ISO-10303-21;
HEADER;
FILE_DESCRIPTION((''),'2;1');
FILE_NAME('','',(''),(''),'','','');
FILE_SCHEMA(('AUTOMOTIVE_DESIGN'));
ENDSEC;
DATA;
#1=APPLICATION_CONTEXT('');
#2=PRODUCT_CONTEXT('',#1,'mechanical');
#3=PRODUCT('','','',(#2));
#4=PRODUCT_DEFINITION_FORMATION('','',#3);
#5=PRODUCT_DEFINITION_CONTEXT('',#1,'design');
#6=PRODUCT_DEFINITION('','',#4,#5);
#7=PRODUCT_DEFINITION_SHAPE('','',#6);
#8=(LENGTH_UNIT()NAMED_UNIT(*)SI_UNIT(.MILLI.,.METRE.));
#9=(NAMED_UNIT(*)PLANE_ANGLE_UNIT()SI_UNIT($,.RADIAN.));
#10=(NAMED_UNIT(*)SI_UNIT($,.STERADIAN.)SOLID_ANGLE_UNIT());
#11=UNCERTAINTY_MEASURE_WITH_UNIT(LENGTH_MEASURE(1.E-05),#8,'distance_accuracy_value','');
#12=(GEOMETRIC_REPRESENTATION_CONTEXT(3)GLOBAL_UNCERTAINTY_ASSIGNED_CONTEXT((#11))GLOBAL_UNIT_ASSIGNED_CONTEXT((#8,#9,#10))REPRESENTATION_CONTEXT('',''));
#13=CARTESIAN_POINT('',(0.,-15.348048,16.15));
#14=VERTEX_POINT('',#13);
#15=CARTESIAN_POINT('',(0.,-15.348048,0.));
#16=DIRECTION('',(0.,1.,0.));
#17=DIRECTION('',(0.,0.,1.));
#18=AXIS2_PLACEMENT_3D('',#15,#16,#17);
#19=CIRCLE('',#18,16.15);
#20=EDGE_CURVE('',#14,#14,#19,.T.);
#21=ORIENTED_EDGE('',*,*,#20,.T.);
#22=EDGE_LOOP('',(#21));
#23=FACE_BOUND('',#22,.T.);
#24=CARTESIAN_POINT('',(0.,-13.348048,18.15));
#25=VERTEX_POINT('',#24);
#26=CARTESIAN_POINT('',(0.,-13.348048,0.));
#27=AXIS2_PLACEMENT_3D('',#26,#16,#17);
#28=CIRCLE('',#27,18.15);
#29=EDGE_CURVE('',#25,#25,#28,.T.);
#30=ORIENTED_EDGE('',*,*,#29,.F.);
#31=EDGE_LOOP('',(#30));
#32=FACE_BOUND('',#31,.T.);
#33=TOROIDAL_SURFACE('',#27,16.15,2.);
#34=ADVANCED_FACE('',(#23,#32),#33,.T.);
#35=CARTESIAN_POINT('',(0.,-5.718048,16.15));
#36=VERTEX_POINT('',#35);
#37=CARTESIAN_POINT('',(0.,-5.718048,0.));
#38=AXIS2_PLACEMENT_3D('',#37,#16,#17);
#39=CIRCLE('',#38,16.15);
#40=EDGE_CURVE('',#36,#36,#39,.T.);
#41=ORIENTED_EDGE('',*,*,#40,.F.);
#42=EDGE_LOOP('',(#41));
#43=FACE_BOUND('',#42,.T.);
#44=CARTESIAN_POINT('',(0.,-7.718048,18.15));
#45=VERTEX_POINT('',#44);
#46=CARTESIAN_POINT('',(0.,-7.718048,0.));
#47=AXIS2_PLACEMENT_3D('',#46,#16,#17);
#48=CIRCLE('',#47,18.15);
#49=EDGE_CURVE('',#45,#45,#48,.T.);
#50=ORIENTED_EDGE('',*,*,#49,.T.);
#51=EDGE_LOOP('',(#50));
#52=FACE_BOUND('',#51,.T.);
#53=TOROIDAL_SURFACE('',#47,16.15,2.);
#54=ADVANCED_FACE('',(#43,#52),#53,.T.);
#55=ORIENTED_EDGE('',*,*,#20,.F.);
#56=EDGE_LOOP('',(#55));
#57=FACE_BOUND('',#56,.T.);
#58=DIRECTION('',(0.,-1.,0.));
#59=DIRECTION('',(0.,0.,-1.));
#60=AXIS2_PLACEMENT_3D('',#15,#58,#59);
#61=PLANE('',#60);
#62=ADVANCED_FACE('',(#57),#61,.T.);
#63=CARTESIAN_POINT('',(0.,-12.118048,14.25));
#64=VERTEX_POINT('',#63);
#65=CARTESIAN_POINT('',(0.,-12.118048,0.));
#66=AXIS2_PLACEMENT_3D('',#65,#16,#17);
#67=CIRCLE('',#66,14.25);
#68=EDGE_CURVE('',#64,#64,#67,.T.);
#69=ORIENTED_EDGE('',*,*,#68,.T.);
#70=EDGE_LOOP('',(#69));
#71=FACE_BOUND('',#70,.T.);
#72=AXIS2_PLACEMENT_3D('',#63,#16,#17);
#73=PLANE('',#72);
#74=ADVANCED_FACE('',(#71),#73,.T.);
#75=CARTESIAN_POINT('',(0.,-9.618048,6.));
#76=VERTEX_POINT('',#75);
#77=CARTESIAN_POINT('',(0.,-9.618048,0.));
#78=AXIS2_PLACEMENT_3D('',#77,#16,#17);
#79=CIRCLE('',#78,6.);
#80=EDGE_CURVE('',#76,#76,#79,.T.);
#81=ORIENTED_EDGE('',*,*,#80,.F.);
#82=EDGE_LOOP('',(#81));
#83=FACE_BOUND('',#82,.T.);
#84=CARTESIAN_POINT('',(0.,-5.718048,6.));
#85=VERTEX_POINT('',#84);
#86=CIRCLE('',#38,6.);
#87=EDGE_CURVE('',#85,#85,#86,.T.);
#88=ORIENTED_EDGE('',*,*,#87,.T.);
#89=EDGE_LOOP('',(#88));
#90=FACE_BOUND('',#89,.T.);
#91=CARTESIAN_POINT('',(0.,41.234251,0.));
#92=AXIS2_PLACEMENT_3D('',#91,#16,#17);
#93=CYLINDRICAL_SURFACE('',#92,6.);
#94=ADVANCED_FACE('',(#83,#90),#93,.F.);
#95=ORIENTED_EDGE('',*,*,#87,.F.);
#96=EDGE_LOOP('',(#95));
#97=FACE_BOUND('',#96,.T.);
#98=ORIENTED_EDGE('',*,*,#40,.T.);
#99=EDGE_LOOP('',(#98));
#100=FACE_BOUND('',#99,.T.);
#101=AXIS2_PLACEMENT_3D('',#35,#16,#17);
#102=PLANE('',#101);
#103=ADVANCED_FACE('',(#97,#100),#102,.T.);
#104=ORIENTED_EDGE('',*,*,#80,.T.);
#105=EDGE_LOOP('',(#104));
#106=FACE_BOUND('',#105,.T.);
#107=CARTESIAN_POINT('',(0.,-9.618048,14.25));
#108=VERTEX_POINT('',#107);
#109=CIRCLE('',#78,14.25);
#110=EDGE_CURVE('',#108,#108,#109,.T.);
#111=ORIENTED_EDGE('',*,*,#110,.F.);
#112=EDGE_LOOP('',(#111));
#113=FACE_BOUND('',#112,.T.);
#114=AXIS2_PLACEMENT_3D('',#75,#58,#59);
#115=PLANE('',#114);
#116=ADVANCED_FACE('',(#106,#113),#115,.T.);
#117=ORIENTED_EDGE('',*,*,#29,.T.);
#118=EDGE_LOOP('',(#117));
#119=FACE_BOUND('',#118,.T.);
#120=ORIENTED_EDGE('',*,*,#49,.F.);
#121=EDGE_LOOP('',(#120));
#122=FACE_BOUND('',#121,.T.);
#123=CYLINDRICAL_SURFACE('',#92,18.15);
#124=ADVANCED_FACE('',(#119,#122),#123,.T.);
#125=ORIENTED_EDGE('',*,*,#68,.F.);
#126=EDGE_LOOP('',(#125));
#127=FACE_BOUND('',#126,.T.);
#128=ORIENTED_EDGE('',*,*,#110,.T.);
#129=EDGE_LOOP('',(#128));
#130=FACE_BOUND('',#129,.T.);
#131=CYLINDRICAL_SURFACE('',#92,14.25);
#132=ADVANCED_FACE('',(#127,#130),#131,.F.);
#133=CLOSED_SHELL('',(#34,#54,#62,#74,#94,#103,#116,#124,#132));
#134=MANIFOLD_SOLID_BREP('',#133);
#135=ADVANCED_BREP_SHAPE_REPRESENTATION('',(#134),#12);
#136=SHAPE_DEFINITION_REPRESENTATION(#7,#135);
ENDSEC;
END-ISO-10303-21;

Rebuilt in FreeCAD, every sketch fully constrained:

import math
import FreeCAD as App
import Part
import Sketcher
from FreeCAD import Vector
Q = App.Units.Quantity

doc = App.newDocument("Part")
body = doc.addObject("PartDesign::Body", "Body")

# Sketch on YZ plane
sketch1 = body.newObject("Sketcher::SketchObject", "Sketch")
sketch1.AttachmentSupport = (doc.getObject("YZ_Plane"), [""])
sketch1.MapMode = "FlatFace"
sketch1.addGeometry([
    Part.LineSegment(Vector(-15.3, 0, 0), Vector(-12.1, 0, 0)),  # 0
    Part.LineSegment(Vector(-12.1, 0, 0), Vector(-12.1, 14.2, 0)),  # 1
    Part.LineSegment(Vector(-12.1, 14.2, 0), Vector(-9.6, 14.2, 0)),  # 2
    Part.LineSegment(Vector(-9.6, 14.2, 0), Vector(-9.6, 6, 0)),  # 3
    Part.LineSegment(Vector(-9.6, 6, 0), Vector(-5.7, 6, 0)),  # 4
    Part.LineSegment(Vector(-5.7, 6, 0), Vector(-5.7, 16.1, 0)),  # 5
    Part.ArcOfCircle(Part.Circle(Vector(-7.7, 16.1, 0), Vector(0, 0, 1), 2), math.radians(0), math.radians(90)),  # 6
    Part.LineSegment(Vector(-7.7, 18.1, 0), Vector(-13.3, 18.1, 0)),  # 7
    Part.ArcOfCircle(Part.Circle(Vector(-13.3, 16.1, 0), Vector(0, 0, 1), 2), math.radians(90), math.radians(180)),  # 8
    Part.LineSegment(Vector(-15.3, 16.1, 0), Vector(-15.3, 0, 0)),  # 9
], False)
sketch1.addConstraint([
    Sketcher.Constraint("Coincident", 0, 2, 1, 1),
    Sketcher.Constraint("Coincident", 1, 2, 2, 1),
    Sketcher.Constraint("Coincident", 2, 2, 3, 1),
    Sketcher.Constraint("Coincident", 3, 2, 4, 1),
    Sketcher.Constraint("Coincident", 4, 2, 5, 1),
    Sketcher.Constraint("Tangent", 5, 2, 6, 1),
    Sketcher.Constraint("Tangent", 6, 2, 7, 1),
    Sketcher.Constraint("Tangent", 7, 2, 8, 1),
    Sketcher.Constraint("Tangent", 8, 2, 9, 1),
    Sketcher.Constraint("Coincident", 9, 2, 0, 1),
    Sketcher.Constraint("Horizontal", 0),
    Sketcher.Constraint("Vertical", 1),
    Sketcher.Constraint("Horizontal", 2),
    Sketcher.Constraint("Vertical", 3),
    Sketcher.Constraint("Horizontal", 4),
    Sketcher.Constraint("Vertical", 5),
    Sketcher.Constraint("Horizontal", 7),
    Sketcher.Constraint("Vertical", 9),
    Sketcher.Constraint("Equal", 6, 8),
    Sketcher.Constraint("PointOnObject", 0, 2, -1),
    Sketcher.Constraint("Radius", 6, Q("2 mm")),
    Sketcher.Constraint("DistanceX", 2, 1, 2, 2, Q("2.5 mm")),
    Sketcher.Constraint("DistanceX", 4, 1, 4, 2, Q("3.9 mm")),
    Sketcher.Constraint("DistanceY", -1, 1, 3, 2, Q("6 mm")),
    Sketcher.Constraint("DistanceX", 0, 1, 0, 2, Q("3.23 mm")),
    Sketcher.Constraint("DistanceY", 1, 1, 1, 2, Q("14.25 mm")),
    Sketcher.Constraint("DistanceY", 5, 1, 5, 2, Q("10.15 mm")),
    Sketcher.Constraint("DistanceX", 6, 3, -1, 1, Q("7.718048 mm")),
])
revolution = body.newObject("PartDesign::Revolution", "Revolution")
revolution.Profile = sketch1
revolution.ReferenceAxis = (sketch1, ["H_Axis"])
revolution.Angle = 360

doc.recompute()
